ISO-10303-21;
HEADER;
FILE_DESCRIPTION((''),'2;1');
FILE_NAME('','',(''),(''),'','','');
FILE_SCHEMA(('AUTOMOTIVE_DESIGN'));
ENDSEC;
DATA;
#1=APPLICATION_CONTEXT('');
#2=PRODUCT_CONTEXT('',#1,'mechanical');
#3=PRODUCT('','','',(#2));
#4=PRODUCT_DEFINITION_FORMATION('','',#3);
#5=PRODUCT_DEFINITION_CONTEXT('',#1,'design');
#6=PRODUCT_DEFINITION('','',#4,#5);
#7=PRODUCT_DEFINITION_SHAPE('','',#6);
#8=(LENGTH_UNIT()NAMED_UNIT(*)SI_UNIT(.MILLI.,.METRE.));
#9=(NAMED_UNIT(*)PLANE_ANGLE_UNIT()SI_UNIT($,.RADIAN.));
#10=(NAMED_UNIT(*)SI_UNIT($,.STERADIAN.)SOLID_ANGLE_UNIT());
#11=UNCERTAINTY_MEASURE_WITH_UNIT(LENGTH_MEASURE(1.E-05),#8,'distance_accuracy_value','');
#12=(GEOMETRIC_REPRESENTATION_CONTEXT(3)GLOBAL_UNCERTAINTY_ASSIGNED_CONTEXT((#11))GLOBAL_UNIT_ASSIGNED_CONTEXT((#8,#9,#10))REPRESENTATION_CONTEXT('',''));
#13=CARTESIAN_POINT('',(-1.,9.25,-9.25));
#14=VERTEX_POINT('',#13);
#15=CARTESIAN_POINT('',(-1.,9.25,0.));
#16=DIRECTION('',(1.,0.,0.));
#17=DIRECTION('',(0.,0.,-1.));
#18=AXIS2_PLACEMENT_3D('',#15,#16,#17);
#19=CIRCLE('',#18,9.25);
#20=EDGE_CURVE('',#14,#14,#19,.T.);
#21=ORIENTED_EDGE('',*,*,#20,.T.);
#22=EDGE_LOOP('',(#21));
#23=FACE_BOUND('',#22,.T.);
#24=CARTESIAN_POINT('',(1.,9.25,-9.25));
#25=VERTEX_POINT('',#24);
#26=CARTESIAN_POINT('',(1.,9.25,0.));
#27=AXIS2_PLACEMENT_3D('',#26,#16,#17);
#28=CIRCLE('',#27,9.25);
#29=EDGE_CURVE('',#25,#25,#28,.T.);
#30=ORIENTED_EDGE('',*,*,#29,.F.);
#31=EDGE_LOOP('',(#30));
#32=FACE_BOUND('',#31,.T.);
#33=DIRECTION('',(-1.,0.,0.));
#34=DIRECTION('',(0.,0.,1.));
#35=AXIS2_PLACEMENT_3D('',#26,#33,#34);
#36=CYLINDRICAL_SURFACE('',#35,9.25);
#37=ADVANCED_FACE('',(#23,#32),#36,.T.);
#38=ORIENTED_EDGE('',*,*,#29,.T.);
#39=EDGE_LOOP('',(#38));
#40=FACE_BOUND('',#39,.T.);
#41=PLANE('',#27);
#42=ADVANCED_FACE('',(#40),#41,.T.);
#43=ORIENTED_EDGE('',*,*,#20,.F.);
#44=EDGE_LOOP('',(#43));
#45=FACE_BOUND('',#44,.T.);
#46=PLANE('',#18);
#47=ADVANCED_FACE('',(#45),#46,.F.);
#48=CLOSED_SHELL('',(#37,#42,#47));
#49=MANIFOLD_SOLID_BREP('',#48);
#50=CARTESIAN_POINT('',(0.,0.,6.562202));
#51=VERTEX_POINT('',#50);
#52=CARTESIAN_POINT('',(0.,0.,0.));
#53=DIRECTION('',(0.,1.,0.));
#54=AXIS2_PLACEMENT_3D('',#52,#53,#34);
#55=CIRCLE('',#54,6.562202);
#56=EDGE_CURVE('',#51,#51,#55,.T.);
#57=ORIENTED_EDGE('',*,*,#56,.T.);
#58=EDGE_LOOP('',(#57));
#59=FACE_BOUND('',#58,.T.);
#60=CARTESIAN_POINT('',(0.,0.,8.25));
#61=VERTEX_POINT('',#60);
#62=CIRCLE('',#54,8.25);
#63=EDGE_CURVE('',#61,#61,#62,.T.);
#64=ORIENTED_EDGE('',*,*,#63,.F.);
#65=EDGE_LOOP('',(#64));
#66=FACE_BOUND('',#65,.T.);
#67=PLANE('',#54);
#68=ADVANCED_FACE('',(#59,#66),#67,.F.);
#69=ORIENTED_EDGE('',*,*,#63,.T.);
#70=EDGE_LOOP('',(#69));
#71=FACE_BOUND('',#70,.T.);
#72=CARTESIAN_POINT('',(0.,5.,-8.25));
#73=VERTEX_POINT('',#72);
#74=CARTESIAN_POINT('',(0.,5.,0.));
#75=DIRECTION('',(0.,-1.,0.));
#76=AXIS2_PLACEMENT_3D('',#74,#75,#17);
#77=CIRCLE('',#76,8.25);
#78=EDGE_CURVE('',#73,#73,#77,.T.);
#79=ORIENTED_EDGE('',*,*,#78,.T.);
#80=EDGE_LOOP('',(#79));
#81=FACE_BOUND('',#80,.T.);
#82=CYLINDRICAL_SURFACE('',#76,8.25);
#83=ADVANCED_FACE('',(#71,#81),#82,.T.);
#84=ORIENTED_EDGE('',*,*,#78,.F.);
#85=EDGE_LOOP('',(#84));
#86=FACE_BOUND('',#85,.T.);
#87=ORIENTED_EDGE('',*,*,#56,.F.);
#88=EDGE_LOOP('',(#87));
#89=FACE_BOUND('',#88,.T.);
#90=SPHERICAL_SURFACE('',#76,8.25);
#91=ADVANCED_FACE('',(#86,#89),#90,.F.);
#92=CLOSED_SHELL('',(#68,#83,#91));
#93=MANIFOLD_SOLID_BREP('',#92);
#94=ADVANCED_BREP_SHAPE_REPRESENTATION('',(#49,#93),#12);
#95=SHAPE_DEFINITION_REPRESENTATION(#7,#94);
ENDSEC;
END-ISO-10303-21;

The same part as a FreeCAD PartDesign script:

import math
import FreeCAD as App
import Part
import Sketcher

V = App.Vector

doc = App.newDocument("Part")
body = doc.addObject("PartDesign::Body", "Body")

# Sketch on XZ plane
sketch1 = body.newObject("Sketcher::SketchObject", "Sketch")
sketch1.AttachmentSupport = (doc.getObject("XZ_Plane"), [""])
sketch1.MapMode = "FlatFace"
sketch1.addGeometry(Part.Circle(V(0, 0, 0), V(0, 0, 1), 8.25), False)
sketch1.addConstraint(Sketcher.Constraint("Coincident", 0, 3, -1, 1))
sketch1.addConstraint(Sketcher.Constraint("Diameter", 0, 16.5))
pad1 = body.newObject("PartDesign::Pad", "Pad")
pad1.Profile = sketch1
pad1.Length = 5
pad1.Reversed = True

# Sketch on XZ plane
sketch2 = body.newObject("Sketcher::SketchObject", "Sketch001")
sketch2.AttachmentSupport = (doc.getObject("XZ_Plane"), [""])
sketch2.MapMode = "FlatFace"
sketch2.AttachmentOffset = App.Placement(V(0, 0, -5), App.Rotation())
sketch2.addGeometry(Part.LineSegment(V(-8.25, 0, 0), V(8.25, 0, 0)), False)
sketch2.addGeometry(Part.ArcOfCircle(Part.Circle(V(0, 0, 0), V(0, 0, 1), 8.25), math.radians(180), math.radians(360)), False)
sketch2.addConstraint(Sketcher.Constraint("Coincident", 0, 1, 1, 1))
sketch2.addConstraint(Sketcher.Constraint("Coincident", 1, 2, 0, 2))
sketch2.addConstraint(Sketcher.Constraint("Horizontal", 0))
sketch2.addConstraint(Sketcher.Constraint("Coincident", 1, 3, -1, 1))
sketch2.addConstraint(Sketcher.Constraint("PointOnObject", 0, 1, -1))
sketch2.addConstraint(Sketcher.Constraint("Radius", 1, 8.25))
groove = body.newObject("PartDesign::Groove", "Groove")
groove.Profile = sketch2
groove.ReferenceAxis = (sketch2, ["H_Axis"])
groove.Angle = 180
groove.Reversed = True
body2 = doc.addObject("PartDesign::Body", "Body001")

# Sketch on YZ plane
sketch3 = body2.newObject("Sketcher::SketchObject", "Sketch002")
sketch3.AttachmentSupport = (doc.getObject("YZ_Plane001"), [""])
sketch3.MapMode = "FlatFace"
sketch3.addGeometry(Part.Circle(V(9.25, 0, 0), V(0, 0, 1), 9.25), False)
sketch3.addConstraint(Sketcher.Constraint("PointOnObject", 0, 3, -1))
sketch3.addConstraint(Sketcher.Constraint("Diameter", 0, 18.5))
sketch3.addConstraint(Sketcher.Constraint("DistanceX", -1, 1, 0, 3, 9.25))
pad2 = body2.newObject("PartDesign::Pad", "Pad001")
pad2.Profile = sketch3
pad2.Length = 2
pad2.Midplane = True

doc.recompute()
